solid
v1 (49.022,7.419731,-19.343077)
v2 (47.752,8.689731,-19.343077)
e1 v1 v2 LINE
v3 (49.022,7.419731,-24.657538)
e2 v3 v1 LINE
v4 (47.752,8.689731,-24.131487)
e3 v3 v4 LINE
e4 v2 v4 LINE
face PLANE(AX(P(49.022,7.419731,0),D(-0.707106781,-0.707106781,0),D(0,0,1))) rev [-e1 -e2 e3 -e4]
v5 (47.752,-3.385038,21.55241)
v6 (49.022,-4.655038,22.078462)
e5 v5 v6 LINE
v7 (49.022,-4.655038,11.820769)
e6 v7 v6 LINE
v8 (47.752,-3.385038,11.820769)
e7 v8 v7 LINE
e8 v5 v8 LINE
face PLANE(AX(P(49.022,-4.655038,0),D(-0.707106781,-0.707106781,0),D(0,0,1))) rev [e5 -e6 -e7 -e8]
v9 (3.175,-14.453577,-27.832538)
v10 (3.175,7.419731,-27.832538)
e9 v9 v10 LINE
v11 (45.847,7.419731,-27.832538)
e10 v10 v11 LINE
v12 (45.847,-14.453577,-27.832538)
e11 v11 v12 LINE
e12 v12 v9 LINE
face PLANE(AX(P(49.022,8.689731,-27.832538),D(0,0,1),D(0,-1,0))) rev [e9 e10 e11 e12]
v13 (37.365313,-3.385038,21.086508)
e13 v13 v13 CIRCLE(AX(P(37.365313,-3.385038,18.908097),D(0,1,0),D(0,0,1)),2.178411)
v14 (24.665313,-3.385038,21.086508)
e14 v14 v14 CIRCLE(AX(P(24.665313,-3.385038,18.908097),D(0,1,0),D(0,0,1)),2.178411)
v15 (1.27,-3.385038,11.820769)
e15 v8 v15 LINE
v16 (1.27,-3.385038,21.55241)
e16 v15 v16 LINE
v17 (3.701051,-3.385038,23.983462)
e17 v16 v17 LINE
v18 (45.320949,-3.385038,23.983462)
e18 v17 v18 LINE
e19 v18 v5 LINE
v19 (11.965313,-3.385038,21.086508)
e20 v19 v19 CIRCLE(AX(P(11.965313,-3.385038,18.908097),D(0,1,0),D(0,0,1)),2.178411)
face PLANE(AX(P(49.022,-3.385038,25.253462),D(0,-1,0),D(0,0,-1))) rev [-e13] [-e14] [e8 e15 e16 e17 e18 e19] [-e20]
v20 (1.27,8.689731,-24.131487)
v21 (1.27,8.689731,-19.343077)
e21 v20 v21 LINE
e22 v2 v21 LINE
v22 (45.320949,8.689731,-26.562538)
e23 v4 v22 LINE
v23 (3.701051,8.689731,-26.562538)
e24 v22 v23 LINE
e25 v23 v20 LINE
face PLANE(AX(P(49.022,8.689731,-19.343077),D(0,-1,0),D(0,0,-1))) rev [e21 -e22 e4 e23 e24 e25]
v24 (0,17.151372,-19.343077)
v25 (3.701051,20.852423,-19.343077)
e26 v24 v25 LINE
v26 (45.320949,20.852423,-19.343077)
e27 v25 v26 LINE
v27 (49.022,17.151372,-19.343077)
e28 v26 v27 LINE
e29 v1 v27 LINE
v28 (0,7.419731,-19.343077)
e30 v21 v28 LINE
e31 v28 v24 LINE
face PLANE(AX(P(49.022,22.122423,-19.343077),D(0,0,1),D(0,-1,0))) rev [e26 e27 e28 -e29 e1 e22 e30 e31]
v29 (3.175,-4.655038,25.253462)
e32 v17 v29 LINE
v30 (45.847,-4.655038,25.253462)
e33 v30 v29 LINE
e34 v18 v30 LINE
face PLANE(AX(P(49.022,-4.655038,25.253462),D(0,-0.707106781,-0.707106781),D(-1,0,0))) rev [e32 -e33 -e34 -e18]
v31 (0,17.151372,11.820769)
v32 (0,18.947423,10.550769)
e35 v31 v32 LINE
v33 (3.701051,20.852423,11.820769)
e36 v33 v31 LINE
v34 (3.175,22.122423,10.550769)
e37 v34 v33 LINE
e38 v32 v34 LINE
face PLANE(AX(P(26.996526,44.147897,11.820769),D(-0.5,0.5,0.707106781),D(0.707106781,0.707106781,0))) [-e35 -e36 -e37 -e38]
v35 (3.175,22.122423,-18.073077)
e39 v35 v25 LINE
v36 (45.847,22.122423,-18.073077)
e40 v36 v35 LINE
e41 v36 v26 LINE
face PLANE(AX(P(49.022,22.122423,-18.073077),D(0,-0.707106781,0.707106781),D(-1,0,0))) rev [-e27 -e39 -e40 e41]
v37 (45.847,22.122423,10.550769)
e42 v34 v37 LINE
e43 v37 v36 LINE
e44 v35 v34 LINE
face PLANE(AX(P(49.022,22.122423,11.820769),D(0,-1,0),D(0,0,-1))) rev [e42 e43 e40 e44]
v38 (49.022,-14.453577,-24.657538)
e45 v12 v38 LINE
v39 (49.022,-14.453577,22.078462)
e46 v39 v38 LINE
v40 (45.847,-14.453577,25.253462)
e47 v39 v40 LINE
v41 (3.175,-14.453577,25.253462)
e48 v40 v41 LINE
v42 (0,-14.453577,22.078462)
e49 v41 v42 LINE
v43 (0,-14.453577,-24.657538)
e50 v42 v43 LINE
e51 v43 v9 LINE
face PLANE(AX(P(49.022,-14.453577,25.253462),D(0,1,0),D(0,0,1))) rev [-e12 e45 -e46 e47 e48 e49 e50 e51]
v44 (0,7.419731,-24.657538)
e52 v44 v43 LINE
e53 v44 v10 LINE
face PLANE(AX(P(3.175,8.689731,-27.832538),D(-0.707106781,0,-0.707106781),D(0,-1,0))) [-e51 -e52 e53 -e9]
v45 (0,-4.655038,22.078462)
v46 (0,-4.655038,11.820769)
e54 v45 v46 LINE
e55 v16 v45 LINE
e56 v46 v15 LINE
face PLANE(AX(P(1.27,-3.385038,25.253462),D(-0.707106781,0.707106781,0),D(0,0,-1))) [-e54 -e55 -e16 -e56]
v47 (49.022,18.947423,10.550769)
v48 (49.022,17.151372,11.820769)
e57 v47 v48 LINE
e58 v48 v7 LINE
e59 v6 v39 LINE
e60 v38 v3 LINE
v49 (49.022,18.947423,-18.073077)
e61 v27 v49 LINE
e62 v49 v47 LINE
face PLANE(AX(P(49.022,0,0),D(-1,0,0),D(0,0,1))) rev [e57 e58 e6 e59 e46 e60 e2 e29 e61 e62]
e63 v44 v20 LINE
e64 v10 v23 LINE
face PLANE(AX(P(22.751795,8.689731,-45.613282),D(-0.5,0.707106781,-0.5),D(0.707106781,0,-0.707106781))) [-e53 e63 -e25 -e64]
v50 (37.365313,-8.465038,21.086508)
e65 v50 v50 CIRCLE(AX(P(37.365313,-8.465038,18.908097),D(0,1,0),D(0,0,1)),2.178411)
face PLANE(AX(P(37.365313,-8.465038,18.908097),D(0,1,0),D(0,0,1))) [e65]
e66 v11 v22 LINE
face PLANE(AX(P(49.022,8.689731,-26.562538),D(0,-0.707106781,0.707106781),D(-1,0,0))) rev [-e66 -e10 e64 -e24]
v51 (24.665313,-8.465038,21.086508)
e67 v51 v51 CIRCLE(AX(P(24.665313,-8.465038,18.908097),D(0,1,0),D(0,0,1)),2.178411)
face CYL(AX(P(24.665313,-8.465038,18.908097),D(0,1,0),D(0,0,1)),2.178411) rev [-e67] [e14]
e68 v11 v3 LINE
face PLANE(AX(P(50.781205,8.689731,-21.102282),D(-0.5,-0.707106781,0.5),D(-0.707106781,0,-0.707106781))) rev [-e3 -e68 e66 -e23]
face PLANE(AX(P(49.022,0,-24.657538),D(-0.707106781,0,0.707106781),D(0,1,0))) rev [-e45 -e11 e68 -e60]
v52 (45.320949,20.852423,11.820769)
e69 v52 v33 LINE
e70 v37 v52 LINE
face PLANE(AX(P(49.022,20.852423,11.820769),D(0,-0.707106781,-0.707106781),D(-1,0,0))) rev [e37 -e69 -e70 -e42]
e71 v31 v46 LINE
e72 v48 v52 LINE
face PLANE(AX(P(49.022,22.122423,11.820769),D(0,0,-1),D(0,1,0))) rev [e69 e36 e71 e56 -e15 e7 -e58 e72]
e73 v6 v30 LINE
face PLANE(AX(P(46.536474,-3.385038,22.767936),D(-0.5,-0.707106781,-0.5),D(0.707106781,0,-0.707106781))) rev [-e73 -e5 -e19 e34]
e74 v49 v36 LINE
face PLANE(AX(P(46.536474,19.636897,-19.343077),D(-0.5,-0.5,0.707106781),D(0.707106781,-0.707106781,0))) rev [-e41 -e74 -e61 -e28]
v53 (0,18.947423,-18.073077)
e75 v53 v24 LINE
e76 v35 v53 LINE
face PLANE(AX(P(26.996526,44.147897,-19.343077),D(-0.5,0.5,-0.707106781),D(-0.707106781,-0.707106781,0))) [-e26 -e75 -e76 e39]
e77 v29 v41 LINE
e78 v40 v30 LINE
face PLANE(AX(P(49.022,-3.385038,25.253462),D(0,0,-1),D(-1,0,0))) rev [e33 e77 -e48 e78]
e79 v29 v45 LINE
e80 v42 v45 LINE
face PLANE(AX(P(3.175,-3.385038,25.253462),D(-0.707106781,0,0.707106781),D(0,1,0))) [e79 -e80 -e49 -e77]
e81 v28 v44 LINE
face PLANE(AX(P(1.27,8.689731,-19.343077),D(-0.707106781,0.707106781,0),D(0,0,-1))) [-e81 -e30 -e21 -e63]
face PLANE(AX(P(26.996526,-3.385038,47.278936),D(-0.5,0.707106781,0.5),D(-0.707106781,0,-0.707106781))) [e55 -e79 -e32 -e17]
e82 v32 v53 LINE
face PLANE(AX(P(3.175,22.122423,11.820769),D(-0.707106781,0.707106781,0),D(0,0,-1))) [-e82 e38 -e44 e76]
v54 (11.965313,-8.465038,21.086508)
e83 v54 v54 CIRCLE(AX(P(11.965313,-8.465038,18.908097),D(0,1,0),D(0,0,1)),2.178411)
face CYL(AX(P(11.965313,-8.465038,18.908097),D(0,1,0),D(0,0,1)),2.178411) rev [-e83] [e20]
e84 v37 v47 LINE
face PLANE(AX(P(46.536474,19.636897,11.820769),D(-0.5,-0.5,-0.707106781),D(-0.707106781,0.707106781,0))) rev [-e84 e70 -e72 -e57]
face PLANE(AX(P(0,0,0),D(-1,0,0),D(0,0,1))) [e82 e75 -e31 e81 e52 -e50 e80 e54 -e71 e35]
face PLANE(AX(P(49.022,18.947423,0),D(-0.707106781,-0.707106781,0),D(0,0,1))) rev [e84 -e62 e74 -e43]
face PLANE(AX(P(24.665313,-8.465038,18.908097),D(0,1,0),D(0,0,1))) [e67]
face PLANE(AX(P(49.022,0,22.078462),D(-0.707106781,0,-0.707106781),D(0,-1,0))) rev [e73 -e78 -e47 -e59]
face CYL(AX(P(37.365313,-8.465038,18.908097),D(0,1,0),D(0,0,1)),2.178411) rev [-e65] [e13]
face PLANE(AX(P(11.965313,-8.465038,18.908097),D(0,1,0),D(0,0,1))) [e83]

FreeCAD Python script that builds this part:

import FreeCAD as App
import Part
import Sketcher

V = App.Vector
Q = App.Units.Quantity


def edges_at(feature, points):
    """Names of the edges that pass closest to the given points."""
    edges = feature.Shape.Edges
    near = lambda p: min(range(len(edges)), key=lambda i: edges[i].distToShape(Part.Vertex(*p))[0])
    return sorted({f"Edge{near(p) + 1}" for p in points})

doc = App.newDocument("Part")
body = doc.addObject("PartDesign::Body", "Body")

sketch1 = body.newObject("Sketcher::SketchObject", "Sketch")
sketch1.AttachmentSupport = (doc.getObject("YZ_Plane"), [""])
sketch1.MapMode = "FlatFace"
sketch1.addGeometry([
    Part.LineSegment(V(8.689731, -27.832538, 0), V(8.689731, -19.343077, 0)),
    Part.LineSegment(V(8.689731, -19.343077, 0), V(22.122423, -19.343077, 0)),
    Part.LineSegment(V(22.122423, -19.343077, 0), V(22.122423, 11.820769, 0)),
    Part.LineSegment(V(22.122423, 11.820769, 0), V(-3.385038, 11.820769, 0)),
    Part.LineSegment(V(-3.385038, 11.820769, 0), V(-3.385038, 25.253462, 0)),
    Part.LineSegment(V(-3.385038, 25.253462, 0), V(-14.453577, 25.253462, 0)),
    Part.LineSegment(V(-14.453577, 25.253462, 0), V(-14.453577, -27.832538, 0)),
    Part.LineSegment(V(-14.453577, -27.832538, 0), V(8.689731, -27.832538, 0)),
], False)
sketch1.addConstraint([
    Sketcher.Constraint("Coincident", 0, 2, 1, 1),
    Sketcher.Constraint("Coincident", 1, 2, 2, 1),
    Sketcher.Constraint("Coincident", 2, 2, 3, 1),
    Sketcher.Constraint("Coincident", 3, 2, 4, 1),
    Sketcher.Constraint("Coincident", 4, 2, 5, 1),
    Sketcher.Constraint("Coincident", 5, 2, 6, 1),
    Sketcher.Constraint("Coincident", 6, 2, 7, 1),
    Sketcher.Constraint("Coincident", 7, 2, 0, 1),
    Sketcher.Constraint("Vertical", 0),
    Sketcher.Constraint("Horizontal", 1),
    Sketcher.Constraint("Vertical", 2),
    Sketcher.Constraint("Horizontal", 3),
    Sketcher.Constraint("Vertical", 4),
    Sketcher.Constraint("Horizontal", 5),
    Sketcher.Constraint("Vertical", 6),
    Sketcher.Constraint("Horizontal", 7),
    Sketcher.Constraint("Equal", 1, 4),
    Sketcher.Constraint("DistanceY", 6, 2, 6, 1, Q("2.09 in")),
    Sketcher.Constraint("DistanceX", 5, 2, 2, 2, Q("1.44 in")),
    Sketcher.Constraint("DistanceX", 3, 2, 3, 1, Q("25.507462 mm")),
    Sketcher.Constraint("DistanceY", 0, 1, 0, 2, Q("8.489462 mm")),
    Sketcher.Constraint("DistanceX", 1, 1, 1, 2, Q("13.432692 mm")),
    Sketcher.Constraint("DistanceX", -1, 1, 0, 2, Q("8.689731 mm")),
    Sketcher.Constraint("DistanceY", -1, 1, 2, 2, Q("11.820769 mm")),
])
pad1 = body.newObject("PartDesign::Pad", "Pad")
pad1.Profile = sketch1
pad1.Length = Q("1.93 in")
doc.recompute()

chamfer = body.newObject("PartDesign::Chamfer", "Chamfer")
chamfer.Base = (pad1, edges_at(pad1, [(0, 22.122, -3.761)]))
chamfer.Size = Q("0.125 in")
doc.recompute()

chamfer2 = body.newObject("PartDesign::Chamfer", "Chamfer001")
chamfer2.Base = (chamfer, edges_at(chamfer, [(49.022, 22.122, -3.761)]))
chamfer2.Size = Q("0.125 in")
doc.recompute()

chamfer3 = body.newObject("PartDesign::Chamfer", "Chamfer002")
chamfer3.Base = (chamfer2, edges_at(chamfer2, [
    (0, -2.882, -27.833),
    (0, -8.919, 25.253),
    (49.022, -2.882, -27.833),
    (49.022, -8.919, 25.253),
]))
chamfer3.Size = Q("0.125 in")

sketch2 = body.newObject("Sketcher::SketchObject", "Sketch001")
sketch2.AttachmentSupport = (doc.getObject("XZ_Plane"), [""])
sketch2.MapMode = "FlatFace"
sketch2.AttachmentOffset = App.Placement(V(0, 0, 3.385038), App.Rotation())
sketch2.addGeometry([
    Part.Circle(V(24.665313, 18.908097, 0), V(0, 0, 1), 2.178411),
    Part.Circle(V(37.365313, 18.908097, 0), V(0, 0, 1), 2.178411),
    Part.Circle(V(11.965313, 18.908097, 0), V(0, 0, 1), 2.178411),
], False)
sketch2.addConstraint([
    Sketcher.Constraint("Equal", 0, 1),
    Sketcher.Constraint("Equal", 1, 2),
    Sketcher.Constraint("Horizontal", 0, 3, 1, 3),
    Sketcher.Constraint("Horizontal", 1, 3, 2, 3),
    Sketcher.Constraint("DistanceX", 2, 3, 1, 3, Q("1 in")),
    Sketcher.Constraint("DistanceX", 0, 3, 1, 3, Q("0.5 in")),
    Sketcher.Constraint("Diameter", 0, Q("4.356821 mm")),
    Sketcher.Constraint("DistanceX", -1, 1, 0, 3, Q("24.665313 mm")),
    Sketcher.Constraint("DistanceY", -1, 1, 0, 3, Q("18.908097 mm")),
])
pocket1 = body.newObject("PartDesign::Pocket", "Pocket")
pocket1.Profile = sketch2
pocket1.Length = Q("0.2 in")
pocket1.Reversed = True
doc.recompute()

chamfer4 = body.newObject("PartDesign::Chamfer", "Chamfer003")
chamfer4.Base = (pocket1, edges_at(pocket1, [
    (49.022, 8.69, -22),
    (0, 8.69, -22),
    (24.511, 8.69, -27.833),
    (1.587, 8.69, -26.245),
    (47.434, 8.69, -26.245),
]))
chamfer4.Size = Q("0.05 in")
doc.recompute()

chamfer5 = body.newObject("PartDesign::Chamfer", "Chamfer004")
chamfer5.Base = (chamfer4, edges_at(chamfer4, [
    (0, -3.385, 16.95),
    (49.022, -3.385, 16.95),
    (24.511, -3.385, 25.253),
    (1.587, -3.385, 23.666),
    (47.434, -3.385, 23.666),
]))
chamfer5.Size = Q("0.05 in")
doc.recompute()

chamfer6 = body.newObject("PartDesign::Chamfer", "Chamfer005")
chamfer6.Base = (chamfer5, edges_at(chamfer5, [
    (1.587, 20.535, 11.821),
    (1.587, 20.535, -19.343),
    (24.511, 22.122, 11.821),
    (47.434, 20.535, 11.821),
    (24.511, 22.122, -19.343),
    (47.434, 20.535, -19.343),
]))
chamfer6.Size = Q("0.05 in")

doc.recompute()
